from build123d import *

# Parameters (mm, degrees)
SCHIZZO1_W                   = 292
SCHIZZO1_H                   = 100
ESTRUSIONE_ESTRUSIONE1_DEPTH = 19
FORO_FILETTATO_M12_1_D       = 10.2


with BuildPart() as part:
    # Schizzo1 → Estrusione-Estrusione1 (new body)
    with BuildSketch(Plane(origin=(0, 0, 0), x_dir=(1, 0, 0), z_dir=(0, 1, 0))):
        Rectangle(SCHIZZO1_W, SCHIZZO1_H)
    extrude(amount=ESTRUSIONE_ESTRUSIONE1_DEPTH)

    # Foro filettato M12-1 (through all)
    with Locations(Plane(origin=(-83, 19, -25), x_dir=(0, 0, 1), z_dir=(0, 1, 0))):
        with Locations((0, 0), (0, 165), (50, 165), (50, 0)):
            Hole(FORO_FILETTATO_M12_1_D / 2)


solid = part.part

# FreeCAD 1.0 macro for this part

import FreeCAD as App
import Part
import Sketcher

V = App.Vector


def add_polygon(sketch, points):
    """Adds a closed chain of lines whose ends are joined by coincident constraints."""
    first, n = sketch.GeometryCount, len(points)
    for a, b in zip(points, points[1:] + points[:1]):
        sketch.addGeometry(Part.LineSegment(App.Vector(*a, 0), App.Vector(*b, 0)), False)
    for i in range(n):
        sketch.addConstraint(Sketcher.Constraint("Coincident", first + i, 2, first + (i + 1) % n, 1))

doc = App.newDocument("Part")
body = doc.addObject("PartDesign::Body", "Body")

sketch1 = body.newObject("Sketcher::SketchObject", "Sketch")
sketch1.AttachmentSupport = (doc.getObject("XZ_Plane"), [""])
sketch1.MapMode = "FlatFace"
add_polygon(sketch1, [(-146, -50), (-146, 50), (146, 50), (146, -50)])
sketch1.addConstraint(Sketcher.Constraint("Vertical", 0))
sketch1.addConstraint(Sketcher.Constraint("Horizontal", 1))
sketch1.addConstraint(Sketcher.Constraint("Vertical", 2))
sketch1.addConstraint(Sketcher.Constraint("Horizontal", 3))
sketch1.addConstraint(Sketcher.Constraint("Symmetric", 0, 2, 2, 2, -1, 1))
sketch1.addConstraint(Sketcher.Constraint("DistanceX", 1, 1, 1, 2, 292.0))
sketch1.addConstraint(Sketcher.Constraint("DistanceY", 0, 1, 0, 2, 100.0))
pad1 = body.newObject("PartDesign::Pad", "Pad")
pad1.Profile = sketch1
pad1.Length = 19
pad1.Reversed = True

sketch2 = body.newObject("Sketcher::SketchObject", "Sketch001")
sketch2.AttachmentSupport = (doc.getObject("XZ_Plane"), [""])
sketch2.MapMode = "FlatFace"
sketch2.AttachmentOffset = App.Placement(V(0, 0, -19), App.Rotation())
sketch2.addGeometry(Part.Circle(V(-83, -25, 0), V(0, 0, 1), 5.1), False)
sketch2.addGeometry(Part.Circle(V(82, -25, 0), V(0, 0, 1), 5.1), False)
sketch2.addGeometry(Part.Circle(V(82, 25, 0), V(0, 0, 1), 5.1), False)
sketch2.addGeometry(Part.Circle(V(-83, 25, 0), V(0, 0, 1), 5.1), False)
sketch2.addConstraint(Sketcher.Constraint("Equal", 0, 1))
sketch2.addConstraint(Sketcher.Constraint("Equal", 1, 2))
sketch2.addConstraint(Sketcher.Constraint("Equal", 2, 3))
sketch2.addConstraint(Sketcher.Constraint("Symmetric", 1, 3, 2, 3, -1))
sketch2.addConstraint(Sketcher.Constraint("Symmetric", 0, 3, 3, 3, -1))
sketch2.addConstraint(Sketcher.Constraint("Horizontal", 0, 3, 1, 3))
sketch2.addConstraint(Sketcher.Constraint("Diameter", 0, 10.2))
sketch2.addConstraint(Sketcher.Constraint("DistanceX", 0, 3, -1, 1, 83.0))
sketch2.addConstraint(Sketcher.Constraint("DistanceY", 0, 3, -1, 1, 25.0))
sketch2.addConstraint(Sketcher.Constraint("DistanceX", -1, 1, 1, 3, 82.0))
doc.recompute()
hole = body.newObject("PartDesign::Hole", "Hole")
hole.Profile = sketch2
hole.ThreadType = "None"
hole.Diameter = 10.2
hole.DepthType = "ThroughAll"
hole.Reversed = True

doc.recompute()
